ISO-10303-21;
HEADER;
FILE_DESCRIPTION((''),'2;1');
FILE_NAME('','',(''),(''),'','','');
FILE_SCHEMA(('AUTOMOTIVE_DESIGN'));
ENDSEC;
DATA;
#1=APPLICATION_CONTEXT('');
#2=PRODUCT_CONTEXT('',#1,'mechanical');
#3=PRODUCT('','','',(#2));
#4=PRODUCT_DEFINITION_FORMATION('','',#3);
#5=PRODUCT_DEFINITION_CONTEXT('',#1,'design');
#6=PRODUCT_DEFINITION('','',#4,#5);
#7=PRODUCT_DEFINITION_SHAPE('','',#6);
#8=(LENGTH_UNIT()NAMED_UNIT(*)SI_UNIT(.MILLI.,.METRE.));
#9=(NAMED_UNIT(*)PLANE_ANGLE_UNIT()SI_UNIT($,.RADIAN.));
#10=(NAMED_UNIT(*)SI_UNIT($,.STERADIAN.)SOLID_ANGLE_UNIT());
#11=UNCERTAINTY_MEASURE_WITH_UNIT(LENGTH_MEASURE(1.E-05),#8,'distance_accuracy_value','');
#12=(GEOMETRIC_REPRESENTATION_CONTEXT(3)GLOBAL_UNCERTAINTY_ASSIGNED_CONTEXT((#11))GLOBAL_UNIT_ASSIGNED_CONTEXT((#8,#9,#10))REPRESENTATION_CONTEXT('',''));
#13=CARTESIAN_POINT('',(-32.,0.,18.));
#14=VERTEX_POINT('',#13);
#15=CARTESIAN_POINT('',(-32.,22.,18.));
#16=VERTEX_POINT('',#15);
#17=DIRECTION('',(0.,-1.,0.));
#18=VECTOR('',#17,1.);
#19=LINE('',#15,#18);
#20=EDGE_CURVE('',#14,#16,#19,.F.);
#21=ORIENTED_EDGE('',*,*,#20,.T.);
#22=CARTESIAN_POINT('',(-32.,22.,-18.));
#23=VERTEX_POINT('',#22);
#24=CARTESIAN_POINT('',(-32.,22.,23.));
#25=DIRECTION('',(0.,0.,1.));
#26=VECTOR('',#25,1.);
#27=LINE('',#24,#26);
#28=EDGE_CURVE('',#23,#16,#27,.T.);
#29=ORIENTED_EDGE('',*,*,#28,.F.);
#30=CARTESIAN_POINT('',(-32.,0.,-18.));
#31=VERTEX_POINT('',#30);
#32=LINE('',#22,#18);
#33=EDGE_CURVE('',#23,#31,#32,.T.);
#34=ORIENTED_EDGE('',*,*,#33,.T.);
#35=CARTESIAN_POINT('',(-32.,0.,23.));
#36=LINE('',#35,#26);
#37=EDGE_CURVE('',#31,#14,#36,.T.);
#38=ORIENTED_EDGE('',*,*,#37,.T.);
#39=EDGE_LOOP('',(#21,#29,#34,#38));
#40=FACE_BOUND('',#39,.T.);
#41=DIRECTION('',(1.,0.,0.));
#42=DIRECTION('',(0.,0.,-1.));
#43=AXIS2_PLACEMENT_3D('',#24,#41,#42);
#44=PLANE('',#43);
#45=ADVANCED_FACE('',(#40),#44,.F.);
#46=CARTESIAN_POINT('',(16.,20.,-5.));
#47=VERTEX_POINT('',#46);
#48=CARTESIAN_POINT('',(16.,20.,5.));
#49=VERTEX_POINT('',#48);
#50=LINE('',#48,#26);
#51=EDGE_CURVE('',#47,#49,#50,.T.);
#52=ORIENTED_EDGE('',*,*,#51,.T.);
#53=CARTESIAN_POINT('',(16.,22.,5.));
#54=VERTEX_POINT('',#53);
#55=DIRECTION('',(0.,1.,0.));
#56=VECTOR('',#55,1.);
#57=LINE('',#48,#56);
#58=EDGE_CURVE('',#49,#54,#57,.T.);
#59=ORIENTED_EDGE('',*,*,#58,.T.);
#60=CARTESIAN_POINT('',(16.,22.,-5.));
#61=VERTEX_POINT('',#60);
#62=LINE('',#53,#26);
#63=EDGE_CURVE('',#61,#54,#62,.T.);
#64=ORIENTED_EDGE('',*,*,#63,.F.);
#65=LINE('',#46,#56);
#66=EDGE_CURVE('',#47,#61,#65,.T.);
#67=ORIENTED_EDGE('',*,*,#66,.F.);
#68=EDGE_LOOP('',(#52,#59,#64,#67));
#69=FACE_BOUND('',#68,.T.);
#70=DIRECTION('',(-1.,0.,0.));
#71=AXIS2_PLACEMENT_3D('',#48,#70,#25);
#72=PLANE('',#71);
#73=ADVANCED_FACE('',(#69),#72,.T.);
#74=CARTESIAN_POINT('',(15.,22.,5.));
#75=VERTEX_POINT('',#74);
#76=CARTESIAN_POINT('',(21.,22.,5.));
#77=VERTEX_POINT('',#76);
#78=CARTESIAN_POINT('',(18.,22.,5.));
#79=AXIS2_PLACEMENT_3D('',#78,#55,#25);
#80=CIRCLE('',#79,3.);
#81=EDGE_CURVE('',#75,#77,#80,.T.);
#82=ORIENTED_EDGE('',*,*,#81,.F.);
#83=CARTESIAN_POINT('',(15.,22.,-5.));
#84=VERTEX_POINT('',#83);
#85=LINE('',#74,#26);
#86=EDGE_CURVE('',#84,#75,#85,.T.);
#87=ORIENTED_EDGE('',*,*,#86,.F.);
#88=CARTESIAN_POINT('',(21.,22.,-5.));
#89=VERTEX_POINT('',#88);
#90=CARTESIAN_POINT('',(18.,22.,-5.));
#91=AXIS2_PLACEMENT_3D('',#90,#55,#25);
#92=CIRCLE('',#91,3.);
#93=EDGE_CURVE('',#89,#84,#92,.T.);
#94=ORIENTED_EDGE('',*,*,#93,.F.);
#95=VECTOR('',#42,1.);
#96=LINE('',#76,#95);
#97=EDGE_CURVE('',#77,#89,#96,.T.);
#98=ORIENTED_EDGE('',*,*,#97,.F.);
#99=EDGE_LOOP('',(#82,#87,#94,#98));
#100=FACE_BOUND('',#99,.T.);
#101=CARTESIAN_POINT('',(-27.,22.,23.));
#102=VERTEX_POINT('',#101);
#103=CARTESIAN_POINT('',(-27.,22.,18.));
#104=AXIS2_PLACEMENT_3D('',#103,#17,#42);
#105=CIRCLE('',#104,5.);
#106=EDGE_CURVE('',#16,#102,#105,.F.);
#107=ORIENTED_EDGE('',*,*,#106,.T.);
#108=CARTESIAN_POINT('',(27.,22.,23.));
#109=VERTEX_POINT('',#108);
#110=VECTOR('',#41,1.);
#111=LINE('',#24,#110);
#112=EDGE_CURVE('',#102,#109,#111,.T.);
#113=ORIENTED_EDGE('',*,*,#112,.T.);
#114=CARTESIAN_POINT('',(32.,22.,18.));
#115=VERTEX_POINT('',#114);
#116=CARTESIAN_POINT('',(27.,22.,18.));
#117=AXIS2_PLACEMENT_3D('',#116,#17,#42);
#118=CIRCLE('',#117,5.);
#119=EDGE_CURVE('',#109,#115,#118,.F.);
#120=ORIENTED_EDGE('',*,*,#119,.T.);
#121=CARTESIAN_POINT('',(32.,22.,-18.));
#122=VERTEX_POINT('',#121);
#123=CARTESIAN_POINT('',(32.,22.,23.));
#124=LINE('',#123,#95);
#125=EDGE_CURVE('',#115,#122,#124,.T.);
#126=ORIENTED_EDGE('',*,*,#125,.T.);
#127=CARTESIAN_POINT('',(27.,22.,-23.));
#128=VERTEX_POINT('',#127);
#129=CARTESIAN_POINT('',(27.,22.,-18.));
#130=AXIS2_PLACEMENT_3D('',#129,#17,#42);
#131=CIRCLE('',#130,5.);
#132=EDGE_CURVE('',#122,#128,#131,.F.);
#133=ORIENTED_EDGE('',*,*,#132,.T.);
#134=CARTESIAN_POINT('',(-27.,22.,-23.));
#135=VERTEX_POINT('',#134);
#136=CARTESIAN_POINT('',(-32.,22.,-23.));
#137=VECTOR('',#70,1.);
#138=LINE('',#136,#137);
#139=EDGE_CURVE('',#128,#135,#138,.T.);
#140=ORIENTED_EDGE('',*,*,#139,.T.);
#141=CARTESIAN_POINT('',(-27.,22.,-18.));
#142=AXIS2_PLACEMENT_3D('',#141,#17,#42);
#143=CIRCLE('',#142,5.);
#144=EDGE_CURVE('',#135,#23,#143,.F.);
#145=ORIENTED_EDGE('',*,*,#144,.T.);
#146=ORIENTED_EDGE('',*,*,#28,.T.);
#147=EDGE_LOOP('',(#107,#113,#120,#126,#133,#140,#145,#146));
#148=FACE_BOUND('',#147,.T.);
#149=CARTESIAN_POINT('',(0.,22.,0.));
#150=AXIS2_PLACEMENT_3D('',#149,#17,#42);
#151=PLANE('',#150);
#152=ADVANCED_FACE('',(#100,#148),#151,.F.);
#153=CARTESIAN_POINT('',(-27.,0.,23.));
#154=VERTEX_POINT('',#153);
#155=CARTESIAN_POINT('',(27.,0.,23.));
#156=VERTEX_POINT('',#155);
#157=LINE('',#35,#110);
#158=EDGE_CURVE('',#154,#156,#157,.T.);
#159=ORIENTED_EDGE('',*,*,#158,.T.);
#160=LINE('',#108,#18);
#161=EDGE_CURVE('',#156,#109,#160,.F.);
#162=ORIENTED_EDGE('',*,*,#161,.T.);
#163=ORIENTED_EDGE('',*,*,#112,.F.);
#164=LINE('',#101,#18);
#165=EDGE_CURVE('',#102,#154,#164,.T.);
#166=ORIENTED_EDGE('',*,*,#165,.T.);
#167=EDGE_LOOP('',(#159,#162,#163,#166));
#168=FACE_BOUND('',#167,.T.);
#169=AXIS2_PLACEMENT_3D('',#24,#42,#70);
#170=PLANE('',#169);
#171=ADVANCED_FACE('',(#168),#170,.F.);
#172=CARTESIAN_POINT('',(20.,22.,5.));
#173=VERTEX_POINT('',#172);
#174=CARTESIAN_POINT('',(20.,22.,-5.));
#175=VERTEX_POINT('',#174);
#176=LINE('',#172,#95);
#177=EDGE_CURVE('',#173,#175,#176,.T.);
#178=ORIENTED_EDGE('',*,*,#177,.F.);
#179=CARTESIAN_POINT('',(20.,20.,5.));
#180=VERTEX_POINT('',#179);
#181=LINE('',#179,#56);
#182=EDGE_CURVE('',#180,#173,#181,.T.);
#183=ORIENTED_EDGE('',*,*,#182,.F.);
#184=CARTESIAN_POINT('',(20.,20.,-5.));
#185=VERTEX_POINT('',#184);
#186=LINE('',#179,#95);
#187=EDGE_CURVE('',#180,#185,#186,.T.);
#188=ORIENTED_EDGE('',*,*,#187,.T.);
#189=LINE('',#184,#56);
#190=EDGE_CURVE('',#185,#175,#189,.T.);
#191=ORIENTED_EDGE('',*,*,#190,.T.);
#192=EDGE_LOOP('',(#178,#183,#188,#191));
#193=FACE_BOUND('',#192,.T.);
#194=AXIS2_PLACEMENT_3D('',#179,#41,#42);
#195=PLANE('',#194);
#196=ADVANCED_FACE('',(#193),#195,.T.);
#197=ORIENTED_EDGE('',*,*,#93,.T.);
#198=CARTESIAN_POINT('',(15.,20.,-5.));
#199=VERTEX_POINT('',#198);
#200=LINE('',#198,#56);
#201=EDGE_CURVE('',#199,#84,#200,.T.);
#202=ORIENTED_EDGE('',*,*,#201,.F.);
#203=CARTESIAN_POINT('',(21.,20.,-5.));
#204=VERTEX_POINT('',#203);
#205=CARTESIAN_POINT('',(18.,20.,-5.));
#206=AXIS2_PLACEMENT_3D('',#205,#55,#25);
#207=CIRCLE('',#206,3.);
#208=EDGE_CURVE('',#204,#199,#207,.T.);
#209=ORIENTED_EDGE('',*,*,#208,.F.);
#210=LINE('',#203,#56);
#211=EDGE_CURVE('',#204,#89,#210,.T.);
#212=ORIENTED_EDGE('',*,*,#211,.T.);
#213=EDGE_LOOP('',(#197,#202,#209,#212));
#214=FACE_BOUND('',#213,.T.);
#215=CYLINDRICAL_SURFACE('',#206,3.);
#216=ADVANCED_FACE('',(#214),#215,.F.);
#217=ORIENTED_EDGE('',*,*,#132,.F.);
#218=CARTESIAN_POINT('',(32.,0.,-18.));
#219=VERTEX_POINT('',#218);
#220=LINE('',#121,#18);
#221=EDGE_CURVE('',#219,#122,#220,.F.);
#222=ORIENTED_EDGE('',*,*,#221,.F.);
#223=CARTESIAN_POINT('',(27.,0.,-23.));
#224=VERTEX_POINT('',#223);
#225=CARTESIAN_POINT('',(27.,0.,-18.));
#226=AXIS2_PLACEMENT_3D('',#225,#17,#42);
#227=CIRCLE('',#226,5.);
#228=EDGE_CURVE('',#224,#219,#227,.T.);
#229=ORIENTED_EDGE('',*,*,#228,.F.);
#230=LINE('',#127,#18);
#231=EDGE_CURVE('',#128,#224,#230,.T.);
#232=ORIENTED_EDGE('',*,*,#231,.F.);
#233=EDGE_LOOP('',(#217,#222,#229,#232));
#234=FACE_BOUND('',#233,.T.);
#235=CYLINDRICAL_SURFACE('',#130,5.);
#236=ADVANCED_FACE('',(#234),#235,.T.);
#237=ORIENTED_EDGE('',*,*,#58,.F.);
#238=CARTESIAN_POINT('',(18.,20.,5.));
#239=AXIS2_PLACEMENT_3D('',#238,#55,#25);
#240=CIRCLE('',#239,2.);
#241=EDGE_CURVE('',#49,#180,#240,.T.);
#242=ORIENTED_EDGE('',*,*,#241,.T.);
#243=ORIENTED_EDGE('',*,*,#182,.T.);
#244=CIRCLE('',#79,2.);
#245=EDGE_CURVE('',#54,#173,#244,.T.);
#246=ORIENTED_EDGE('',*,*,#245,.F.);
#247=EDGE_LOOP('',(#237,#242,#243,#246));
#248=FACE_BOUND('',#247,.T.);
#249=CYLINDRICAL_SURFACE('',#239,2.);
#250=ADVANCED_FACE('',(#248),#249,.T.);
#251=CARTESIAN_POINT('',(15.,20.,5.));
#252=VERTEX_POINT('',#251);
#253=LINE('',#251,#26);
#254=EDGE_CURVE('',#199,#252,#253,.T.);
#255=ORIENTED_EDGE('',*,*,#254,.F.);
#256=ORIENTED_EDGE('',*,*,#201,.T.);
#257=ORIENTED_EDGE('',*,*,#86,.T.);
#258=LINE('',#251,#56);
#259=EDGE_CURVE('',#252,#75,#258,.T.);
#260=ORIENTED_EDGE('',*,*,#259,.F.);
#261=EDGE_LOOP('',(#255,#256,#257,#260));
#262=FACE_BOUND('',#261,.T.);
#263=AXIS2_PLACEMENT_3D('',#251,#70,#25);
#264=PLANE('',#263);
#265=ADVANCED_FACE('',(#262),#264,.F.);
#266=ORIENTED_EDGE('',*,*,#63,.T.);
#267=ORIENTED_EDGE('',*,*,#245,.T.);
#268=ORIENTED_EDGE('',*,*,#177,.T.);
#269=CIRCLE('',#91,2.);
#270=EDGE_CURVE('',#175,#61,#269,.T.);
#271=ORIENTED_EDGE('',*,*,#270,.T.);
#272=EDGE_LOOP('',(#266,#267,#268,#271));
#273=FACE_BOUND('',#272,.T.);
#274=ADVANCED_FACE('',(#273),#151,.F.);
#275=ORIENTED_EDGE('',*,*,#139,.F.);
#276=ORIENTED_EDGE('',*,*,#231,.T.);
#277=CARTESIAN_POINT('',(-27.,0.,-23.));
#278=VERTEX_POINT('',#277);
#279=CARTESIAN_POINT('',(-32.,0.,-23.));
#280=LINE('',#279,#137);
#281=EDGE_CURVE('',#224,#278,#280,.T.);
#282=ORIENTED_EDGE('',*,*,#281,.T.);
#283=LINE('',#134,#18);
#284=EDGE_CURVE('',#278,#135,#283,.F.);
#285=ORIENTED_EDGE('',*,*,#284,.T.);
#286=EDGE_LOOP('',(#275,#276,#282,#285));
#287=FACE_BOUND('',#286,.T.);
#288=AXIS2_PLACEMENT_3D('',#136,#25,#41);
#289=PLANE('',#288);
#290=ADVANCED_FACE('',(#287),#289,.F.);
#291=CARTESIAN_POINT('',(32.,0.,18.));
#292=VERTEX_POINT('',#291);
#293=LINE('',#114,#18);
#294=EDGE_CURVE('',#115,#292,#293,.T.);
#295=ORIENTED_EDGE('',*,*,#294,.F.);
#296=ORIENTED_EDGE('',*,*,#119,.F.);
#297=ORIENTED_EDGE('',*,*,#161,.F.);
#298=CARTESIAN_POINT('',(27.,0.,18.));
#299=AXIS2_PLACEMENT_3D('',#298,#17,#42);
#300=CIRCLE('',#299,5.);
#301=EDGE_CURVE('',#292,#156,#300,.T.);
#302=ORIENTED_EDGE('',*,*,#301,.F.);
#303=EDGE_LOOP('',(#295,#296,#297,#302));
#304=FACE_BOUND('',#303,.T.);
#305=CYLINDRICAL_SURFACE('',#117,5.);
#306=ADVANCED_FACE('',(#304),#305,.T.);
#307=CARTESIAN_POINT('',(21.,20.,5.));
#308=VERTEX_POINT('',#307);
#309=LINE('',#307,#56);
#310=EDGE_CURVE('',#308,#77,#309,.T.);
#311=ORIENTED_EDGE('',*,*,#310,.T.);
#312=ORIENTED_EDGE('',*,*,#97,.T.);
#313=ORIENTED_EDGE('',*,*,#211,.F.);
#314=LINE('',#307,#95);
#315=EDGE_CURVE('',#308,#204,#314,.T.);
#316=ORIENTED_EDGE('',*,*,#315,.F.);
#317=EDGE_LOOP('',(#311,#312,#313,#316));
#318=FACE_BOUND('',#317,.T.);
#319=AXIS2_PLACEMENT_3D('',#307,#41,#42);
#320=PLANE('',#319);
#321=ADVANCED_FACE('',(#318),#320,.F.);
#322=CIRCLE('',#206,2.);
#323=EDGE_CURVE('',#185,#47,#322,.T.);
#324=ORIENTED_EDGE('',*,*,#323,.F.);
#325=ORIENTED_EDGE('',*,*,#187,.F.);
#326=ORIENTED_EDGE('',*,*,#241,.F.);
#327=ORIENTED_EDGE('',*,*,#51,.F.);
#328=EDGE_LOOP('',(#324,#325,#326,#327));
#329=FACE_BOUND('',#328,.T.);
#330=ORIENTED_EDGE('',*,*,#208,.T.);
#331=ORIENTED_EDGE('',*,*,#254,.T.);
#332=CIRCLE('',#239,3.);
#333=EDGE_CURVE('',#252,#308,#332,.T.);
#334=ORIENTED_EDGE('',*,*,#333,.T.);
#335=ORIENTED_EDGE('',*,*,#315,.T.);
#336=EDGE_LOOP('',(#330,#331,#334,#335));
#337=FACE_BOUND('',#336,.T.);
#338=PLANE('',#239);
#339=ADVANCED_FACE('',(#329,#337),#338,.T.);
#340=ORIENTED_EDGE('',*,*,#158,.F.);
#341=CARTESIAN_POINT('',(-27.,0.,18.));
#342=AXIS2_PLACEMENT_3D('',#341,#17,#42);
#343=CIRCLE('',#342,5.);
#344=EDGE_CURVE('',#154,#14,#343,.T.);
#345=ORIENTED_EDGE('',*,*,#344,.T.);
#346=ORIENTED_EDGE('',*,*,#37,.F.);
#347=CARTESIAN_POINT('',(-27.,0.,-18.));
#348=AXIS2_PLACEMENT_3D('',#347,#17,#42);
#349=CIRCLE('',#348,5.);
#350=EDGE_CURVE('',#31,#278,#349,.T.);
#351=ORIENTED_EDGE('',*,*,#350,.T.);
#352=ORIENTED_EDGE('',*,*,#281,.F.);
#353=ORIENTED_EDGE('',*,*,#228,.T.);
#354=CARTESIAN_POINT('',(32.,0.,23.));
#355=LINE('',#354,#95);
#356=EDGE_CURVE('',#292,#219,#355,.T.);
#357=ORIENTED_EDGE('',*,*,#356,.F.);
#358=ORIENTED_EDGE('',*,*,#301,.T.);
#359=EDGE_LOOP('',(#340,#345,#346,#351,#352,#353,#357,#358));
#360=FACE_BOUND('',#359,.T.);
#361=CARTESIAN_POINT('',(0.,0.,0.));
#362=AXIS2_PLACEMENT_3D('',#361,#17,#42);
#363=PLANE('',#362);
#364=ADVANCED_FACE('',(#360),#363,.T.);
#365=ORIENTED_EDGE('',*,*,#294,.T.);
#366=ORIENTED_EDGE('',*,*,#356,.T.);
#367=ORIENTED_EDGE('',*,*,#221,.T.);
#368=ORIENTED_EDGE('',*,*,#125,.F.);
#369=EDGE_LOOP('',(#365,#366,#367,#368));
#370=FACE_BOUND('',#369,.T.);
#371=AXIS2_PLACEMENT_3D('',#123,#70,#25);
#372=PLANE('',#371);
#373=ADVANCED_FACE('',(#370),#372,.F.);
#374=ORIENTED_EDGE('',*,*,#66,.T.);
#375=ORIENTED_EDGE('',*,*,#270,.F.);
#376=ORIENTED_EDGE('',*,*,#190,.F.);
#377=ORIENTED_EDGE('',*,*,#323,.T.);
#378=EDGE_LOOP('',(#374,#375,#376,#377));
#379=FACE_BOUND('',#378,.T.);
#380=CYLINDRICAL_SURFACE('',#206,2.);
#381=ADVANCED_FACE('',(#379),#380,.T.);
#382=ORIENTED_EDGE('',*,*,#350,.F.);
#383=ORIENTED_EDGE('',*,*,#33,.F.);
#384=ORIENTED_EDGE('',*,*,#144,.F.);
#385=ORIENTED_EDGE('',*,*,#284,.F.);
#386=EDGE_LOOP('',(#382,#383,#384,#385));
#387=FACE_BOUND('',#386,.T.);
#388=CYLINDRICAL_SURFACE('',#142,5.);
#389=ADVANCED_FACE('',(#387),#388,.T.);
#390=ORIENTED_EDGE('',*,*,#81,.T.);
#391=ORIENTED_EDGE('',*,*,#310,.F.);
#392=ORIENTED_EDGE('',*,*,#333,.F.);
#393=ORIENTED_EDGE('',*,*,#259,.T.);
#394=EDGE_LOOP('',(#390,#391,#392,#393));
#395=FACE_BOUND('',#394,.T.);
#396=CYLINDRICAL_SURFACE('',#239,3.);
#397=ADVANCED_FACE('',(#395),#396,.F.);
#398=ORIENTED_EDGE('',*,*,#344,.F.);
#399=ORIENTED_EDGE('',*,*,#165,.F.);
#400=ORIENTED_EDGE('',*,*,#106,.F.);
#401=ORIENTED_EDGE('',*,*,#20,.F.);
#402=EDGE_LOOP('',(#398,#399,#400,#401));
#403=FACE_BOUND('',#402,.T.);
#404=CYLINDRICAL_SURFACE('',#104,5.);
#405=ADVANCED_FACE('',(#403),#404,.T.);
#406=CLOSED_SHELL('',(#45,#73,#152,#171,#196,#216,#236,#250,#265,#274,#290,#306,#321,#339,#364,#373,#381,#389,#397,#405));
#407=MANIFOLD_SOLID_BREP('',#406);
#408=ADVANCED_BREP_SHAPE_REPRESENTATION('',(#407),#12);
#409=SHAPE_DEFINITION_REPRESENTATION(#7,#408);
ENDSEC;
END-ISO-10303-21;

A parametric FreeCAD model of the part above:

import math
import FreeCAD as App
import Part
import Sketcher

V = App.Vector
Q = App.Units.Quantity


def edges_at(feature, points):
    """Names of the edges that pass closest to the given points."""
    edges = feature.Shape.Edges
    near = lambda p: min(range(len(edges)), key=lambda i: edges[i].distToShape(Part.Vertex(*p))[0])
    return sorted({f"Edge{near(p) + 1}" for p in points})


def add_polygon(sketch, points):
    """Adds a closed chain of lines whose ends are joined by coincident constraints."""
    first, n = sketch.GeometryCount, len(points)
    for a, b in zip(points, points[1:] + points[:1]):
        sketch.addGeometry(Part.LineSegment(App.Vector(*a, 0), App.Vector(*b, 0)), False)
    for i in range(n):
        sketch.addConstraint(Sketcher.Constraint("Coincident", first + i, 2, first + (i + 1) % n, 1))

doc = App.newDocument("Part")
body = doc.addObject("PartDesign::Body", "Body")

sketch1 = body.newObject("Sketcher::SketchObject", "Sketch")
sketch1.AttachmentSupport = (doc.getObject("XZ_Plane"), [""])
sketch1.MapMode = "FlatFace"
add_polygon(sketch1, [(-32, -23), (-32, 23), (32, 23), (32, -23)])
sketch1.addConstraint(Sketcher.Constraint("Vertical", 0))
sketch1.addConstraint(Sketcher.Constraint("Horizontal", 1))
sketch1.addConstraint(Sketcher.Constraint("Vertical", 2))
sketch1.addConstraint(Sketcher.Constraint("Horizontal", 3))
sketch1.addConstraint(Sketcher.Constraint("Symmetric", 0, 2, 2, 2, -1, 1))
sketch1.addConstraint(Sketcher.Constraint("DistanceX", 1, 1, 1, 2, Q("64 mm")))
sketch1.addConstraint(Sketcher.Constraint("DistanceY", 0, 1, 0, 2, Q("46 mm")))
pad1 = body.newObject("PartDesign::Pad", "Pad")
pad1.Profile = sketch1
pad1.Length = 22
pad1.Reversed = True
doc.recompute()

fillet = body.newObject("PartDesign::Fillet", "Fillet")
fillet.Base = (pad1, edges_at(pad1, [
    (32, 11, 23),
    (-32, 11, 23),
    (-32, 11, -23),
    (32, 11, -23),
]))
fillet.Radius = 5

sketch2 = body.newObject("Sketcher::SketchObject", "Sketch001")
sketch2.AttachmentSupport = (doc.getObject("XZ_Plane"), [""])
sketch2.MapMode = "FlatFace"
sketch2.AttachmentOffset = App.Placement(V(0, 0, -22), App.Rotation())
sketch2.addGeometry(Part.LineSegment(V(15, -5, 0), V(15, 5, 0)), False)
sketch2.addGeometry(Part.ArcOfCircle(Part.Circle(V(18, 5, 0), V(0, 0, 1), 3), math.radians(0), math.radians(180)), False)
sketch2.addGeometry(Part.LineSegment(V(21, 5, 0), V(21, -5, 0)), False)
sketch2.addGeometry(Part.ArcOfCircle(Part.Circle(V(18, -5, 0), V(0, 0, 1), 3), math.radians(180), math.radians(360)), False)
sketch2.addGeometry(Part.LineSegment(V(16, 5, 0), V(16, -5, 0)), False)
sketch2.addGeometry(Part.ArcOfCircle(Part.Circle(V(18, -5, 0), V(0, 0, 1), 2), math.radians(180), math.radians(360)), False)
sketch2.addGeometry(Part.LineSegment(V(20, -5, 0), V(20, 5, 0)), False)
sketch2.addGeometry(Part.ArcOfCircle(Part.Circle(V(18, 5, 0), V(0, 0, 1), 2), math.radians(0), math.radians(180)), False)
sketch2.addConstraint(Sketcher.Constraint("Tangent", 0, 2, 1, 2))
sketch2.addConstraint(Sketcher.Constraint("Tangent", 1, 1, 2, 1))
sketch2.addConstraint(Sketcher.Constraint("Tangent", 2, 2, 3, 2))
sketch2.addConstraint(Sketcher.Constraint("Tangent", 3, 1, 0, 1))
sketch2.addConstraint(Sketcher.Constraint("Tangent", 4, 2, 5, 1))
sketch2.addConstraint(Sketcher.Constraint("Tangent", 5, 2, 6, 1))
sketch2.addConstraint(Sketcher.Constraint("Tangent", 6, 2, 7, 1))
sketch2.addConstraint(Sketcher.Constraint("Tangent", 7, 2, 4, 1))
sketch2.addConstraint(Sketcher.Constraint("Vertical", 0))
sketch2.addConstraint(Sketcher.Constraint("Vertical", 2))
sketch2.addConstraint(Sketcher.Constraint("Vertical", 4))
sketch2.addConstraint(Sketcher.Constraint("Vertical", 6))
sketch2.addConstraint(Sketcher.Constraint("Coincident", 5, 3, 3, 3))
sketch2.addConstraint(Sketcher.Constraint("Horizontal", 7, 3, 0, 2))
sketch2.addConstraint(Sketcher.Constraint("Radius", 1, Q("3 mm")))
sketch2.addConstraint(Sketcher.Constraint("Radius", 5, Q("2 mm")))
sketch2.addConstraint(Sketcher.Constraint("DistanceY", 0, 1, 0, 2, Q("10 mm")))
sketch2.addConstraint(Sketcher.Constraint("DistanceX", -1, 1, 1, 3, Q("18 mm")))
sketch2.addConstraint(Sketcher.Constraint("DistanceY", -1, 1, 1, 3, Q("5 mm")))
pocket1 = body.newObject("PartDesign::Pocket", "Pocket")
pocket1.Profile = sketch2
pocket1.Length = 2
pocket1.Reversed = True

doc.recompute()
